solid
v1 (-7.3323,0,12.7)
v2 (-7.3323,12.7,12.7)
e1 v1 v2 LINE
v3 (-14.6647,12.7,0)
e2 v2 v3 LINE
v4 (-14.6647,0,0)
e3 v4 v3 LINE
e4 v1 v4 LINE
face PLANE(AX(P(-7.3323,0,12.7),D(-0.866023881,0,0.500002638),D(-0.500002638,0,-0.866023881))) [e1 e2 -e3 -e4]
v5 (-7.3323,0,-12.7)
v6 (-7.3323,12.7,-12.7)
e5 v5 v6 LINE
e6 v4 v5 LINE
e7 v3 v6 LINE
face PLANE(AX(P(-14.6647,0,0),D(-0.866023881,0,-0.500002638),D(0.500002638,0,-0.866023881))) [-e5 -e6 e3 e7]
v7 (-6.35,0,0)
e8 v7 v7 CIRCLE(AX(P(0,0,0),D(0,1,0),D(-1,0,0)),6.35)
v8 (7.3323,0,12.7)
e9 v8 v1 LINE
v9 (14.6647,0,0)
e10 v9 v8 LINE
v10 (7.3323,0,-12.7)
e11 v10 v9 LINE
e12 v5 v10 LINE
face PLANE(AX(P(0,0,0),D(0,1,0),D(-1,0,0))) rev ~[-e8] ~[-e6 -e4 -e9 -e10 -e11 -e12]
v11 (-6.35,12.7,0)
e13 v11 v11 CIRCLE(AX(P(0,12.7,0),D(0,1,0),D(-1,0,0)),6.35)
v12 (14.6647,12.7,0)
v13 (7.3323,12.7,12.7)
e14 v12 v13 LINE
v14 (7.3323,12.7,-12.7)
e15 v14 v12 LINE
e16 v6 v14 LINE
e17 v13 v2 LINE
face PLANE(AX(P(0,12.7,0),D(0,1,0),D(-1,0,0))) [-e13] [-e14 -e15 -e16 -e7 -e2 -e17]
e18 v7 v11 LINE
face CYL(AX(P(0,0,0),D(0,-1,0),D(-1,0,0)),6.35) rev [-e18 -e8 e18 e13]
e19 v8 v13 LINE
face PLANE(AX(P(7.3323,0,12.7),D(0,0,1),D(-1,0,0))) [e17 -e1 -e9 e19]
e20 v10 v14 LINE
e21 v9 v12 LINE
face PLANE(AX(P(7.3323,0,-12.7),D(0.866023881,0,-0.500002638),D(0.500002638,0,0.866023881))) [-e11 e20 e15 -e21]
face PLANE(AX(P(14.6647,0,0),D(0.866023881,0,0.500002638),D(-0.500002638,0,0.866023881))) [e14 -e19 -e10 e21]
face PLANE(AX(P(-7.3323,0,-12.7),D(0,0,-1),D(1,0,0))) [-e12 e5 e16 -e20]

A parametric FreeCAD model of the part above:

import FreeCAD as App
import Part
import Sketcher

V = App.Vector
Q = App.Units.Quantity

doc = App.newDocument("Part")
body = doc.addObject("PartDesign::Body", "Body")

sketch1 = doc.addObject("Sketcher::SketchObject", "Sketch")
body.addObject(sketch1)
sketch1.AttachmentSupport = (doc.XZ_Plane, [""])
sketch1.MapMode = "FlatFace"
sketch1.addGeometry([
    Part.LineSegment(V(7.3323, 12.7, 0), V(14.6647, 0, 0)),
    Part.LineSegment(V(14.6647, 0, 0), V(7.3323, -12.7, 0)),
    Part.LineSegment(V(7.3323, -12.7, 0), V(-7.3323, -12.7, 0)),
    Part.LineSegment(V(-7.3323, -12.7, 0), V(-14.6647, 0, 0)),
    Part.LineSegment(V(-14.6647, 0, 0), V(-7.3323, 12.7, 0)),
    Part.LineSegment(V(-7.3323, 12.7, 0), V(7.3323, 12.7, 0)),
    Part.Circle(V(0, 0, 0), V(0, 0, 1), 6.35),
], False)
sketch1.addConstraint([
    Sketcher.Constraint("Coincident", 0, 2, 1, 1),
    Sketcher.Constraint("Coincident", 1, 2, 2, 1),
    Sketcher.Constraint("Coincident", 2, 2, 3, 1),
    Sketcher.Constraint("Coincident", 3, 2, 4, 1),
    Sketcher.Constraint("Coincident", 4, 2, 5, 1),
    Sketcher.Constraint("Coincident", 5, 2, 0, 1),
    Sketcher.Constraint("Horizontal", 2),
    Sketcher.Constraint("Horizontal", 5),
    Sketcher.Constraint("Coincident", 6, 3, -1, 1),
    Sketcher.Constraint("Symmetric", 0, 2, 3, 2, -1, 1),
    Sketcher.Constraint("Symmetric", 1, 2, 4, 2, -1, 1),
    Sketcher.Constraint("PointOnObject", 0, 2, -1),
    Sketcher.Constraint("Parallel", 0, 3),
    Sketcher.Constraint("Vertical", 2, 2, 4, 2),
    Sketcher.Constraint("Diameter", 6, Q("0.5 in")),
    Sketcher.Constraint("DistanceY", 2, 2, 4, 2, Q("1 in")),
    Sketcher.Constraint("Angle", 0, Q("-59.9998 deg")),
    Sketcher.Constraint("DistanceX", 2, 2, 2, 1, Q("14.6646 mm")),
])
pad1 = doc.addObject("PartDesign::Pad", "Pad")
body.addObject(pad1)
pad1.Profile = sketch1
pad1.Length = Q("0.5 in")
pad1.Reversed = True

doc.recompute()
